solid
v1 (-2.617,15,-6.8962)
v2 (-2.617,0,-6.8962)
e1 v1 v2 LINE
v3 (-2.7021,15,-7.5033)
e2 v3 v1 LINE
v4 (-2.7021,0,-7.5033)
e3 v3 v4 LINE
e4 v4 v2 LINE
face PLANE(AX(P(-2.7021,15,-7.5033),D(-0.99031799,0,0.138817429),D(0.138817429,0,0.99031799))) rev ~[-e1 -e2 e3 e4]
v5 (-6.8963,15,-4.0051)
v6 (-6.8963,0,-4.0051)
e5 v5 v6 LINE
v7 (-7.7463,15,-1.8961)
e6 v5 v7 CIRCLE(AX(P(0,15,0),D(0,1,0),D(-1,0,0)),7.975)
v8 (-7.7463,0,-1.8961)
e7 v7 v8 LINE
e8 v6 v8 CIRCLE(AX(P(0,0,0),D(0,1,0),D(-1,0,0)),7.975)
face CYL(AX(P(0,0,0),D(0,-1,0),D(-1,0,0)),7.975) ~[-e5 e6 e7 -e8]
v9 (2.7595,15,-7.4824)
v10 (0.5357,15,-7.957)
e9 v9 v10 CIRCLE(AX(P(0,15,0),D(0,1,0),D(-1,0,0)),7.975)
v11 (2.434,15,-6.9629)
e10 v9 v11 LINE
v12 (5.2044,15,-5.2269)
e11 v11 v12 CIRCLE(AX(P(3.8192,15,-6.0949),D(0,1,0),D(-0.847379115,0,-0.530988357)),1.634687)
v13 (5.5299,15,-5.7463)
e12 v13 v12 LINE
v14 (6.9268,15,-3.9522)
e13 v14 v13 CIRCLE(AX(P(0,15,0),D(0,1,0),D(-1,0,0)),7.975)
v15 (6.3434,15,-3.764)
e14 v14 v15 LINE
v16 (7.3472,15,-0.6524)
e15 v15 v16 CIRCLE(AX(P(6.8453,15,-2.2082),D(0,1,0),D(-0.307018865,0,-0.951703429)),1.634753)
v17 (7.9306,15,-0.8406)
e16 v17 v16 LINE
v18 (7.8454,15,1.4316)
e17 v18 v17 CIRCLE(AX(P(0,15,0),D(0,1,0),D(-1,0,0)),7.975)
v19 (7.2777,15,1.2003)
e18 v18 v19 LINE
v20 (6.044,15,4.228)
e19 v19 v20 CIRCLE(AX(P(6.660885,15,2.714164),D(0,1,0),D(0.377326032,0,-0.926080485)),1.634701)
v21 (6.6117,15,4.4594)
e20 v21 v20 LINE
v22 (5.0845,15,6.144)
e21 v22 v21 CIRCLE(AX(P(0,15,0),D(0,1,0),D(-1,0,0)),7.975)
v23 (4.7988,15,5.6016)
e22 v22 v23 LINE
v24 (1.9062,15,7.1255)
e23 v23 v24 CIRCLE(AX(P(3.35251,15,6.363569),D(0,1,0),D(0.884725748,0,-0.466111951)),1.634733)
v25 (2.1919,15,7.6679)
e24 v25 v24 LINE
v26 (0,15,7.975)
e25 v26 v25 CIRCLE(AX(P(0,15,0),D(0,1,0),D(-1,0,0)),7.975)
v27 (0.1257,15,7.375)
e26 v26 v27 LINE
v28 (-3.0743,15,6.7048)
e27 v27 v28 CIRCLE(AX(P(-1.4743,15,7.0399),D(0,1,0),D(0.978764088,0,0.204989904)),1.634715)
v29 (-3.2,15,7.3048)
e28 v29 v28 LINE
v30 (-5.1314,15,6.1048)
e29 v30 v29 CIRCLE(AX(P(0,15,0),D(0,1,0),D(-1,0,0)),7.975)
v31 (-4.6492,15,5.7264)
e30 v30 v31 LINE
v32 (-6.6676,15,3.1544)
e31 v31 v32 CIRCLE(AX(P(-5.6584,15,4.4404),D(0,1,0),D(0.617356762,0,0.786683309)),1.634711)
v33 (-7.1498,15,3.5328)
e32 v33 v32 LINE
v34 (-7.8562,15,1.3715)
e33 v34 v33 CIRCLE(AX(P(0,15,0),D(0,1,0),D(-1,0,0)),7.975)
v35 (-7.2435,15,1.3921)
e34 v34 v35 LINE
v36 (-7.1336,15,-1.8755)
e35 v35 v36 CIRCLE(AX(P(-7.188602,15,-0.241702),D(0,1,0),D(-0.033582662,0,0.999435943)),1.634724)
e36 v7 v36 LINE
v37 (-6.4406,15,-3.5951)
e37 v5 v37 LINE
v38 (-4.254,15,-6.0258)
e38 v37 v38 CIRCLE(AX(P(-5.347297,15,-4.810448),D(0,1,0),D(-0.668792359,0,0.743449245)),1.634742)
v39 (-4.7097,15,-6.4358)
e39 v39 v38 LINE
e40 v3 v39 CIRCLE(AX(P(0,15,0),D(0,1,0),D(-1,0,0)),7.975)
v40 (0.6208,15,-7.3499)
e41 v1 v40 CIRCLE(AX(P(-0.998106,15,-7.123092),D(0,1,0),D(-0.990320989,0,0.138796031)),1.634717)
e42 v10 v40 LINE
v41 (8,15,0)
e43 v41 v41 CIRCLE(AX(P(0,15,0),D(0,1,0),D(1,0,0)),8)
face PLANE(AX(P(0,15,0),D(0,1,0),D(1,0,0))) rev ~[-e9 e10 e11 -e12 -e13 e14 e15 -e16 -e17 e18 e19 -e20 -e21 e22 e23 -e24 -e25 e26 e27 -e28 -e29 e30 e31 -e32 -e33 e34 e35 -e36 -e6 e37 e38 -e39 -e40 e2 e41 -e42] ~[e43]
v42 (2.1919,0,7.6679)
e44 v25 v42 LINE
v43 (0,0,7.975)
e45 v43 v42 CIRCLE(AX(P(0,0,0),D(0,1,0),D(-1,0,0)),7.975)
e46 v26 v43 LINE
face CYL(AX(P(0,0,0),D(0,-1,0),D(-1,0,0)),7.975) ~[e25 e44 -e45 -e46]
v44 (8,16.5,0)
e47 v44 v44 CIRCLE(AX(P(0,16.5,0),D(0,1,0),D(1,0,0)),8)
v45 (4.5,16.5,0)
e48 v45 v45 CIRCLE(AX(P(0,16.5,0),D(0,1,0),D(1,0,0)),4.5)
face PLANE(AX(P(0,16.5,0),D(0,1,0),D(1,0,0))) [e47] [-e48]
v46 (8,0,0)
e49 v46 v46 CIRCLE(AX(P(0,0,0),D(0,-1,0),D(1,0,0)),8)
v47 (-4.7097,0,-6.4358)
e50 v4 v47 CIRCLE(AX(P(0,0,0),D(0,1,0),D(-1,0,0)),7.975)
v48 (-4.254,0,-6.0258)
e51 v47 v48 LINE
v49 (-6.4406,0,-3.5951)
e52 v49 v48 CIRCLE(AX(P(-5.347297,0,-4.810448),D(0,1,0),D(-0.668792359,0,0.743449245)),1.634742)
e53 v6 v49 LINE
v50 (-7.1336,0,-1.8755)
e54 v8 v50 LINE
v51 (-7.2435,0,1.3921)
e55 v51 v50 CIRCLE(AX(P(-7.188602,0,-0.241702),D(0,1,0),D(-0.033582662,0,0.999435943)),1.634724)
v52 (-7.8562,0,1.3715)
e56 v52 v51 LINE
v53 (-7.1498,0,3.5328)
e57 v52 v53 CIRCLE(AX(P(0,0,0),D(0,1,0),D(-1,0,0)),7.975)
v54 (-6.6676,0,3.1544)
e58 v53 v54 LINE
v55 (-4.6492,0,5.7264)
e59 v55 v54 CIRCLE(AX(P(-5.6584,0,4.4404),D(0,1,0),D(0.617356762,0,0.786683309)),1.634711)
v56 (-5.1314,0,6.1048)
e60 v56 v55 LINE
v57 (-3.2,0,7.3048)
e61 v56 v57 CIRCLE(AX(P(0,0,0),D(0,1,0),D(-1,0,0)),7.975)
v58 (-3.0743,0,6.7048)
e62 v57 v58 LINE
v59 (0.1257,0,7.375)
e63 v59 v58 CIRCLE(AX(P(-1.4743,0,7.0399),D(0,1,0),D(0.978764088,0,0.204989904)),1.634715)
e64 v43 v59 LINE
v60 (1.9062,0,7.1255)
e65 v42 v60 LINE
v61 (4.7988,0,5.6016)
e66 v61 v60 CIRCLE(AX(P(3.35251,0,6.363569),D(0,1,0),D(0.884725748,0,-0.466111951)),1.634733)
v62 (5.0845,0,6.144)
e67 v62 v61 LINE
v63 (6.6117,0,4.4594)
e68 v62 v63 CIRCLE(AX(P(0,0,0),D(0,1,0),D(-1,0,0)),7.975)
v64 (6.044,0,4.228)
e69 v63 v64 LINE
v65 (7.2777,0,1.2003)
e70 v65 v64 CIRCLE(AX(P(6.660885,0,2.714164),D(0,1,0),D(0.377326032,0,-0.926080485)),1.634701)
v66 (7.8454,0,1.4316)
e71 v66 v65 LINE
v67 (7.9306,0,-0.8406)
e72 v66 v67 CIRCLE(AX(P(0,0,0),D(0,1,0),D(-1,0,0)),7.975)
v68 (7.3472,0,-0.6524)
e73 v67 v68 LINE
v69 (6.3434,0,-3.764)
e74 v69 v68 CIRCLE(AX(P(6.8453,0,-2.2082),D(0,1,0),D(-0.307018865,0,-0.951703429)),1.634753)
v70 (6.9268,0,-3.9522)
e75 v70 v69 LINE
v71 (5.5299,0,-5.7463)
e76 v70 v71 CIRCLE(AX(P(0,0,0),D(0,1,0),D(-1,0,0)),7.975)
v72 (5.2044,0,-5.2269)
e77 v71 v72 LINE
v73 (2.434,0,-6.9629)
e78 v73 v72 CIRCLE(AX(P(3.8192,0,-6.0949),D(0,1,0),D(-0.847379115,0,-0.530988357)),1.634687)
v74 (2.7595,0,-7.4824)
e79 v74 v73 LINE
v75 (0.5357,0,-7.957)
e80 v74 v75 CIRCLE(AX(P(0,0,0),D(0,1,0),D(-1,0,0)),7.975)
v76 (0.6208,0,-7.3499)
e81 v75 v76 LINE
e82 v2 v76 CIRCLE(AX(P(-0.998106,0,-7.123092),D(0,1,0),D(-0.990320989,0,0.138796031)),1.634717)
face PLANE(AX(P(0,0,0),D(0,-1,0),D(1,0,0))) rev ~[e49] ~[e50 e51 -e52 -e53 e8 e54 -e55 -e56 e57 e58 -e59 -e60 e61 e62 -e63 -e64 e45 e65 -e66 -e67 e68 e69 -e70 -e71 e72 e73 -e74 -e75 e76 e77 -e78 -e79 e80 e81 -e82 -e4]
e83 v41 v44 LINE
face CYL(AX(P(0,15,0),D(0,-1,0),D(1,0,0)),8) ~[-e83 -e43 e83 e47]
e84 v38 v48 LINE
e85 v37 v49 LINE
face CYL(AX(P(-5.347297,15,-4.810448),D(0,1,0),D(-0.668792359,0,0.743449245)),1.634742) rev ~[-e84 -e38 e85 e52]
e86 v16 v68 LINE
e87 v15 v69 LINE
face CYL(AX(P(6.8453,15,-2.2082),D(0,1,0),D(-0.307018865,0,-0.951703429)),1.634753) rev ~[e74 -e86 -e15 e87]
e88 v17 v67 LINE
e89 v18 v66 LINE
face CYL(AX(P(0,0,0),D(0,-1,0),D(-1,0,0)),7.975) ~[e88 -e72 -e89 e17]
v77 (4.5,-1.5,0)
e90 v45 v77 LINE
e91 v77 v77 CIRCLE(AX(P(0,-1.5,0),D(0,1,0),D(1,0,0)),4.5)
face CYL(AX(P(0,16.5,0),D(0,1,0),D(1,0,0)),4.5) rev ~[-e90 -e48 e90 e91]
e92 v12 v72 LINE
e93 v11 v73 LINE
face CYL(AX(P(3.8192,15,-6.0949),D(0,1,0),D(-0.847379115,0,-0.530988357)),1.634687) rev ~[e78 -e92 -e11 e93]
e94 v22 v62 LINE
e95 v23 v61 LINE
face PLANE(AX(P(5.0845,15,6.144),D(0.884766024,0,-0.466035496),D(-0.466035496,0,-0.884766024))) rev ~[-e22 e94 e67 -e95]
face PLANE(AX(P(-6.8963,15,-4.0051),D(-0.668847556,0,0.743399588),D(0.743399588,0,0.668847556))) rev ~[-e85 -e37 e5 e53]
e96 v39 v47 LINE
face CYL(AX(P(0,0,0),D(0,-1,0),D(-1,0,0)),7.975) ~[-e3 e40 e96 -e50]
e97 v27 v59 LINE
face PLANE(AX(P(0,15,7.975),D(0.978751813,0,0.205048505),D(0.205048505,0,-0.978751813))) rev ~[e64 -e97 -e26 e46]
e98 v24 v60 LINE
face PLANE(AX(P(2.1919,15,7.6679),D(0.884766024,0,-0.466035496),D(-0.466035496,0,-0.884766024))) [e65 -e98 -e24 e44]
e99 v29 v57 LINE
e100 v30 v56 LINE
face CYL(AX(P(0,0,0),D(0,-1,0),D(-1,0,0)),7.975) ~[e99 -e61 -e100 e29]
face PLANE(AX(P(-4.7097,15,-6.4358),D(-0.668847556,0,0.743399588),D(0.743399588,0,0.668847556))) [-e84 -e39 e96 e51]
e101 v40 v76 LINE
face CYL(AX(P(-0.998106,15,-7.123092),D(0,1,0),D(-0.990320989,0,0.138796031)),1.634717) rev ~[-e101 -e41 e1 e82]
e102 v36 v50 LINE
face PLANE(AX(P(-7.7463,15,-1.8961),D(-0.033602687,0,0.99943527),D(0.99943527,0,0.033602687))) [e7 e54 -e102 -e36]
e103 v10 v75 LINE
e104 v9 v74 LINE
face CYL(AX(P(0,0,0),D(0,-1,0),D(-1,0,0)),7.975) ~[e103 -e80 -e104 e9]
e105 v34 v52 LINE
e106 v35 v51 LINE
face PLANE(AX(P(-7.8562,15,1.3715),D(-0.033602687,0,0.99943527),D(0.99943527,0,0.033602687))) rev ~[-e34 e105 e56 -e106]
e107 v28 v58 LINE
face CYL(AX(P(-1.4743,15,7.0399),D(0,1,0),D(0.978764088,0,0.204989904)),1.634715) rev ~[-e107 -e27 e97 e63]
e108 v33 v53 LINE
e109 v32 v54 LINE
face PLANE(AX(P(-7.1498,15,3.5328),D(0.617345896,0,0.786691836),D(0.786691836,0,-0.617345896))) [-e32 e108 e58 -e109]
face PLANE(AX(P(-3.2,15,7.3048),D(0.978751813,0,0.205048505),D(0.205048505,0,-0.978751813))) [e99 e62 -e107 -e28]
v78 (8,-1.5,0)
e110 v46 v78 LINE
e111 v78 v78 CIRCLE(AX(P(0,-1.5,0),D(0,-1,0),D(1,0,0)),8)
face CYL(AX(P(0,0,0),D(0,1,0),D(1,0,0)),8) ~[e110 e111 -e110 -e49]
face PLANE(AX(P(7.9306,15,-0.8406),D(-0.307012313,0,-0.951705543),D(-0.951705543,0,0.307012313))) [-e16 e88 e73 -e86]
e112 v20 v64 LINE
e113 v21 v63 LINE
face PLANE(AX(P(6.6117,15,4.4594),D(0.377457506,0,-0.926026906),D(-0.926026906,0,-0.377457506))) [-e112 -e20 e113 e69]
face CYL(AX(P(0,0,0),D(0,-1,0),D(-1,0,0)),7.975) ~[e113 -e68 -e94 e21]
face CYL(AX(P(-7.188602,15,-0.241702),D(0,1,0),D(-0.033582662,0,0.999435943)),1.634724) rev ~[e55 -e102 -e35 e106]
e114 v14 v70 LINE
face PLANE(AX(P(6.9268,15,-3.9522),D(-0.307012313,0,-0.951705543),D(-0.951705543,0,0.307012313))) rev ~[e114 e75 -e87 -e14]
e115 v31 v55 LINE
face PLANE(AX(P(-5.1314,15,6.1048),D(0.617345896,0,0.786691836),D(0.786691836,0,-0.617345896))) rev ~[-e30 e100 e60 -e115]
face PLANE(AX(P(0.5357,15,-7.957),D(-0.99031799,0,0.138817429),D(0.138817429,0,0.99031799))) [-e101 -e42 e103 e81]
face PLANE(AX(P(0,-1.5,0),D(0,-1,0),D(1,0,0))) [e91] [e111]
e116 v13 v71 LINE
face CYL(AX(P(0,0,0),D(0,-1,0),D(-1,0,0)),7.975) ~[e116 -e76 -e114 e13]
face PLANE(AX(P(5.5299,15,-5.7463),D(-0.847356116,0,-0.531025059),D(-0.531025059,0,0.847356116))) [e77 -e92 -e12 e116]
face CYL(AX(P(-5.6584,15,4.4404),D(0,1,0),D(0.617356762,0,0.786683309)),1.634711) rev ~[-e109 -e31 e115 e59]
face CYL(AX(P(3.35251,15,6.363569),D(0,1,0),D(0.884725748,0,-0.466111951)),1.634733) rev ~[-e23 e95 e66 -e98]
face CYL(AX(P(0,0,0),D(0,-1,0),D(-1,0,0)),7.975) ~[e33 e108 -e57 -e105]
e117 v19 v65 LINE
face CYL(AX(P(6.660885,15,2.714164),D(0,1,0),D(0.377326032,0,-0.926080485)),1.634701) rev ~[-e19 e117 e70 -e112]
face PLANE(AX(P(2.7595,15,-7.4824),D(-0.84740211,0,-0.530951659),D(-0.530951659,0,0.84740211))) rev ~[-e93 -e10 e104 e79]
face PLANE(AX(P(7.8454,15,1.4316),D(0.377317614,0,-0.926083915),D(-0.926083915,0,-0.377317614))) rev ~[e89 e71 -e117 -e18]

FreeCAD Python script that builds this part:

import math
import FreeCAD as App
import Part
import Sketcher
from FreeCAD import Vector
Q = App.Units.Quantity

doc = App.newDocument("Part")
body = doc.addObject("PartDesign::Body", "Body")

# Sketch on XZ plane
sketch1 = body.newObject("Sketcher::SketchObject", "Sketch")
sketch1.AttachmentSupport = (doc.getObject("XZ_Plane"), [""])
sketch1.MapMode = "FlatFace"
sketch1.addGeometry(Part.Circle(Vector(0, 0, 0), Vector(0, 0, 1), 8), False)
sketch1.addConstraint([
    Sketcher.Constraint("Coincident", 0, 3, -1, 1),
    Sketcher.Constraint("Diameter", 0, 15.95),
])
pad1 = body.newObject("PartDesign::Pad", "Pad")
pad1.Profile = sketch1
pad1.Length = 15
pad1.Reversed = True

# Sketch on XZ plane
sketch2 = body.newObject("Sketcher::SketchObject", "Sketch001")
sketch2.AttachmentSupport = (doc.getObject("XZ_Plane"), [""])
sketch2.MapMode = "FlatFace"
sketch2.AttachmentOffset = App.Placement(Vector(0, 0, -15), App.Rotation())
sketch2.addGeometry([
    Part.LineSegment(Vector(7.3, -0.7, 0), Vector(7.9, -0.8, 0)),  # 0
    Part.ArcOfCircle(Part.Circle(Vector(0, 0, 0), Vector(0, 0, 1), 8), math.radians(-30), math.radians(-6)),  # 1
    Part.LineSegment(Vector(6.9, -4, 0), Vector(6.3, -3.8, 0)),  # 2
    Part.ArcOfCircle(Part.Circle(Vector(6.8, -2.2, 0), Vector(0, 0, 1), 1.6), math.radians(72), math.radians(252)),  # 3
    Part.ArcOfCircle(Part.Circle(Vector(0, 0, 0), Vector(0, 0, 1), 8), math.radians(10), math.radians(34)),  # 4
    Part.LineSegment(Vector(7.8, 1.4, 0), Vector(7.3, 1.2, 0)),  # 5
    Part.ArcOfCircle(Part.Circle(Vector(6.7, 2.7, 0), Vector(0, 0, 1), 1.6), math.radians(112), math.radians(292)),  # 6
    Part.LineSegment(Vector(6, 4.2, 0), Vector(6.6, 4.5, 0)),  # 7
    Part.LineSegment(Vector(5.2, -5.2, 0), Vector(5.5, -5.7, 0)),  # 8
    Part.ArcOfCircle(Part.Circle(Vector(0, 0, 0), Vector(0, 0, 1), 8), math.radians(-70), math.radians(-46)),  # 9
    Part.LineSegment(Vector(2.8, -7.5, 0), Vector(2.4, -7, 0)),  # 10
    Part.ArcOfCircle(Part.Circle(Vector(3.8, -6.1, 0), Vector(0, 0, 1), 1.6), math.radians(32), math.radians(212)),  # 11
    Part.ArcOfCircle(Part.Circle(Vector(0, 0, 0), Vector(0, 0, 1), 8), math.radians(50), math.radians(74)),  # 12
    Part.LineSegment(Vector(5.1, 6.1, 0), Vector(4.8, 5.6, 0)),  # 13
    Part.ArcOfCircle(Part.Circle(Vector(3.4, 6.4, 0), Vector(0, 0, 1), 1.6), math.radians(152), math.radians(332)),  # 14
    Part.LineSegment(Vector(1.9, 7.1, 0), Vector(2.2, 7.7, 0)),  # 15
    Part.LineSegment(Vector(0.6, -7.3, 0), Vector(0.5, -8, 0)),  # 16
    Part.ArcOfCircle(Part.Circle(Vector(0, 0, 0), Vector(0, 0, 1), 8), math.radians(-110), math.radians(-86)),  # 17
    Part.LineSegment(Vector(-2.7, -7.5, 0), Vector(-2.6, -6.9, 0)),  # 18
    Part.ArcOfCircle(Part.Circle(Vector(-1, -7.1, 0), Vector(0, 0, 1), 1.6), math.radians(-8), math.radians(172)),  # 19
    Part.ArcOfCircle(Part.Circle(Vector(0, 0, 0), Vector(0, 0, 1), 8), math.radians(90), math.radians(114)),  # 20
    Part.LineSegment(Vector(0, 8, 0), Vector(0.1, 7.4, 0)),  # 21
    Part.ArcOfCircle(Part.Circle(Vector(-1.5, 7, 0), Vector(0, 0, 1), 1.6), math.radians(-168), math.radians(12)),  # 22
    Part.LineSegment(Vector(-3.1, 6.7, 0), Vector(-3.2, 7.3, 0)),  # 23
    Part.LineSegment(Vector(-4.3, -6, 0), Vector(-4.7, -6.4, 0)),  # 24
    Part.ArcOfCircle(Part.Circle(Vector(0, 0, 0), Vector(0, 0, 1), 8), math.radians(-150), math.radians(-126)),  # 25
    Part.LineSegment(Vector(-6.9, -4, 0), Vector(-6.4, -3.6, 0)),  # 26
    Part.ArcOfCircle(Part.Circle(Vector(-5.3, -4.8, 0), Vector(0, 0, 1), 1.6), math.radians(-48), math.radians(132)),  # 27
    Part.ArcOfCircle(Part.Circle(Vector(0, 0, 0), Vector(0, 0, 1), 8), math.radians(130), math.radians(154)),  # 28
    Part.LineSegment(Vector(-5.1, 6.1, 0), Vector(-4.6, 5.7, 0)),  # 29
    Part.ArcOfCircle(Part.Circle(Vector(-5.7, 4.4, 0), Vector(0, 0, 1), 1.6), math.radians(-128), math.radians(52)),  # 30
    Part.LineSegment(Vector(-6.7, 3.2, 0), Vector(-7.1, 3.5, 0)),  # 31
    Part.LineSegment(Vector(-7.1, -1.9, 0), Vector(-7.7, -1.9, 0)),  # 32
    Part.ArcOfCircle(Part.Circle(Vector(0, 0, 0), Vector(0, 0, 1), 8), math.radians(170), math.radians(194)),  # 33
    Part.LineSegment(Vector(-7.9, 1.4, 0), Vector(-7.2, 1.4, 0)),  # 34
    Part.ArcOfCircle(Part.Circle(Vector(-7.2, -0.2, 0), Vector(0, 0, 1), 1.6), math.radians(-88), math.radians(92)),  # 35
], False)
sketch2.addConstraint([
    Sketcher.Constraint("Coincident", 0, 2, 1, 2),
    Sketcher.Constraint("Coincident", 1, 1, 2, 1),
    Sketcher.Constraint("Tangent", 2, 2, 3, 2),
    Sketcher.Constraint("Tangent", 3, 1, 0, 1),
    Sketcher.Constraint("Coincident", 4, 1, 5, 1),
    Sketcher.Constraint("Tangent", 5, 2, 6, 2),
    Sketcher.Constraint("Tangent", 6, 1, 7, 1),
    Sketcher.Constraint("Coincident", 7, 2, 4, 2),
    Sketcher.Constraint("Coincident", 8, 2, 9, 2),
    Sketcher.Constraint("Coincident", 9, 1, 10, 1),
    Sketcher.Constraint("Tangent", 10, 2, 11, 2),
    Sketcher.Constraint("Tangent", 11, 1, 8, 1),
    Sketcher.Constraint("Coincident", 12, 1, 13, 1),
    Sketcher.Constraint("Tangent", 13, 2, 14, 2),
    Sketcher.Constraint("Tangent", 14, 1, 15, 1),
    Sketcher.Constraint("Coincident", 15, 2, 12, 2),
    Sketcher.Constraint("Coincident", 16, 2, 17, 2),
    Sketcher.Constraint("Coincident", 17, 1, 18, 1),
    Sketcher.Constraint("Tangent", 18, 2, 19, 2),
    Sketcher.Constraint("Tangent", 19, 1, 16, 1),
    Sketcher.Constraint("Coincident", 20, 1, 21, 1),
    Sketcher.Constraint("Tangent", 21, 2, 22, 2),
    Sketcher.Constraint("Tangent", 22, 1, 23, 1),
    Sketcher.Constraint("Coincident", 23, 2, 20, 2),
    Sketcher.Constraint("Coincident", 24, 2, 25, 2),
    Sketcher.Constraint("Coincident", 25, 1, 26, 1),
    Sketcher.Constraint("Tangent", 26, 2, 27, 2),
    Sketcher.Constraint("Tangent", 27, 1, 24, 1),
    Sketcher.Constraint("Coincident", 28, 1, 29, 1),
    Sketcher.Constraint("Tangent", 29, 2, 30, 2),
    Sketcher.Constraint("Tangent", 30, 1, 31, 1),
    Sketcher.Constraint("Coincident", 31, 2, 28, 2),
    Sketcher.Constraint("Coincident", 32, 2, 33, 2),
    Sketcher.Constraint("Coincident", 33, 1, 34, 1),
    Sketcher.Constraint("Tangent", 34, 2, 35, 2),
    Sketcher.Constraint("Tangent", 35, 1, 32, 1),
    Sketcher.Constraint("Coincident", 1, 3, -1, 1),
    Sketcher.Constraint("Coincident", 4, 3, -1, 1),
    Sketcher.Constraint("Coincident", 9, 3, -1, 1),
    Sketcher.Constraint("Coincident", 12, 3, -1, 1),
    Sketcher.Constraint("Coincident", 17, 3, -1, 1),
    Sketcher.Constraint("Coincident", 20, 3, -1, 1),
    Sketcher.Constraint("Coincident", 25, 3, -1, 1),
    Sketcher.Constraint("Coincident", 28, 3, -1, 1),
    Sketcher.Constraint("Coincident", 33, 3, -1, 1),
    Sketcher.Constraint("Equal", 1, 4),
    Sketcher.Constraint("Equal", 3, 6),
    Sketcher.Constraint("Equal", 4, 9),
    Sketcher.Constraint("Equal", 6, 11),
    Sketcher.Constraint("Equal", 9, 12),
    Sketcher.Constraint("Equal", 11, 14),
    Sketcher.Constraint("Equal", 12, 17),
    Sketcher.Constraint("Equal", 14, 19),
    Sketcher.Constraint("Equal", 17, 20),
    Sketcher.Constraint("Equal", 19, 22),
    Sketcher.Constraint("Equal", 20, 25),
    Sketcher.Constraint("Equal", 22, 27),
    Sketcher.Constraint("Equal", 25, 28),
    Sketcher.Constraint("Equal", 27, 30),
    Sketcher.Constraint("Equal", 28, 33),
    Sketcher.Constraint("Equal", 30, 35),
    Sketcher.Constraint("PointOnObject", 20, 1, -2),
    Sketcher.Constraint("Parallel", 0, 2),
    Sketcher.Constraint("Parallel", 5, 7),
    Sketcher.Constraint("Parallel", 8, 10),
    Sketcher.Constraint("Parallel", 13, 15),
    Sketcher.Constraint("Parallel", 16, 18),
    Sketcher.Constraint("Parallel", 21, 23),
    Sketcher.Constraint("Parallel", 24, 26),
    Sketcher.Constraint("Parallel", 29, 31),
    Sketcher.Constraint("Parallel", 32, 34),
    Sketcher.Constraint("Equal", 0, 2),
    Sketcher.Constraint("Equal", 2, 5),
    Sketcher.Constraint("Equal", 5, 7),
    Sketcher.Constraint("Equal", 7, 8),
    Sketcher.Constraint("Equal", 8, 10),
    Sketcher.Constraint("Equal", 10, 13),
    Sketcher.Constraint("Equal", 13, 15),
    Sketcher.Constraint("Equal", 15, 16),
    Sketcher.Constraint("Equal", 16, 18),
    Sketcher.Constraint("Equal", 18, 21),
    Sketcher.Constraint("Equal", 21, 23),
    Sketcher.Constraint("Equal", 23, 24),
    Sketcher.Constraint("Equal", 24, 26),
    Sketcher.Constraint("Equal", 26, 29),
    Sketcher.Constraint("Equal", 29, 31),
    Sketcher.Constraint("Equal", 31, 32),
    Sketcher.Constraint("Equal", 32, 34),
    Sketcher.Constraint("DistanceX", 23, 2, -1, 1, 3.2),
    Sketcher.Constraint("DistanceY", 21, 2, 20, 1, 0.6),
    Sketcher.Constraint("DistanceY", 28, 1, 22, 1, 0.6),
    Sketcher.Constraint("Radius", 1, 7.975),
    Sketcher.Constraint("DistanceY", -1, 1, 5, 2, 1.2003),
    Sketcher.Constraint("Angle", 0, Q("-17.8793 deg")),
    Sketcher.Constraint("Angle", 10, Q("122.0698 deg")),
    Sketcher.Constraint("Angle", 16, Q("-97.9794 deg")),
    Sketcher.Constraint("DistanceY", 25, 1, 26, 2, 0.41),
    Sketcher.Constraint("DistanceX", 32, 2, 25, 1, 0.85),
    Sketcher.Constraint("DistanceY", -1, 1, 12, 1, 6.144),
])
pocket1 = body.newObject("PartDesign::Pocket", "Pocket")
pocket1.Profile = sketch2
pocket1.Length = 15
pocket1.Reversed = True

# Sketch on XZ plane
sketch3 = body.newObject("Sketcher::SketchObject", "Sketch002")
sketch3.AttachmentSupport = (doc.getObject("XZ_Plane"), [""])
sketch3.MapMode = "FlatFace"
sketch3.AttachmentOffset = App.Placement(Vector(0, 0, -15), App.Rotation())
sketch3.addGeometry(Part.Circle(Vector(0, 0, 0), Vector(0, 0, 1), 8), False)
sketch3.addConstraint([
    Sketcher.Constraint("Coincident", 0, 3, -1, 1),
    Sketcher.Constraint("Diameter", 0, 16.0),
])
pad2 = body.newObject("PartDesign::Pad", "Pad001")
pad2.Profile = sketch3
pad2.Length = 1.5
pad2.Reversed = True

# Sketch on XZ plane
sketch4 = body.newObject("Sketcher::SketchObject", "Sketch003")
sketch4.AttachmentSupport = (doc.getObject("XZ_Plane"), [""])
sketch4.MapMode = "FlatFace"
sketch4.addGeometry(Part.Circle(Vector(0, 0, 0), Vector(0, 0, 1), 8), False)
sketch4.addConstraint([
    Sketcher.Constraint("Coincident", 0, 3, -1, 1),
    Sketcher.Constraint("Diameter", 0, 16.0),
])
pad3 = body.newObject("PartDesign::Pad", "Pad002")
pad3.Profile = sketch4
pad3.Length = 1.5

# Sketch on XZ plane
sketch5 = body.newObject("Sketcher::SketchObject", "Sketch004")
sketch5.AttachmentSupport = (doc.getObject("XZ_Plane"), [""])
sketch5.MapMode = "FlatFace"
sketch5.AttachmentOffset = App.Placement(Vector(0, 0, -16.5), App.Rotation())
sketch5.addGeometry(Part.Circle(Vector(0, 0, 0), Vector(0, 0, 1), 4.5), False)
sketch5.addConstraint([
    Sketcher.Constraint("Coincident", 0, 3, -1, 1),
    Sketcher.Constraint("Diameter", 0, 9.0),
])
pocket2 = body.newObject("PartDesign::Pocket", "Pocket001")
pocket2.Profile = sketch5
pocket2.Type = "ThroughAll"
pocket2.Reversed = True

doc.recompute()
